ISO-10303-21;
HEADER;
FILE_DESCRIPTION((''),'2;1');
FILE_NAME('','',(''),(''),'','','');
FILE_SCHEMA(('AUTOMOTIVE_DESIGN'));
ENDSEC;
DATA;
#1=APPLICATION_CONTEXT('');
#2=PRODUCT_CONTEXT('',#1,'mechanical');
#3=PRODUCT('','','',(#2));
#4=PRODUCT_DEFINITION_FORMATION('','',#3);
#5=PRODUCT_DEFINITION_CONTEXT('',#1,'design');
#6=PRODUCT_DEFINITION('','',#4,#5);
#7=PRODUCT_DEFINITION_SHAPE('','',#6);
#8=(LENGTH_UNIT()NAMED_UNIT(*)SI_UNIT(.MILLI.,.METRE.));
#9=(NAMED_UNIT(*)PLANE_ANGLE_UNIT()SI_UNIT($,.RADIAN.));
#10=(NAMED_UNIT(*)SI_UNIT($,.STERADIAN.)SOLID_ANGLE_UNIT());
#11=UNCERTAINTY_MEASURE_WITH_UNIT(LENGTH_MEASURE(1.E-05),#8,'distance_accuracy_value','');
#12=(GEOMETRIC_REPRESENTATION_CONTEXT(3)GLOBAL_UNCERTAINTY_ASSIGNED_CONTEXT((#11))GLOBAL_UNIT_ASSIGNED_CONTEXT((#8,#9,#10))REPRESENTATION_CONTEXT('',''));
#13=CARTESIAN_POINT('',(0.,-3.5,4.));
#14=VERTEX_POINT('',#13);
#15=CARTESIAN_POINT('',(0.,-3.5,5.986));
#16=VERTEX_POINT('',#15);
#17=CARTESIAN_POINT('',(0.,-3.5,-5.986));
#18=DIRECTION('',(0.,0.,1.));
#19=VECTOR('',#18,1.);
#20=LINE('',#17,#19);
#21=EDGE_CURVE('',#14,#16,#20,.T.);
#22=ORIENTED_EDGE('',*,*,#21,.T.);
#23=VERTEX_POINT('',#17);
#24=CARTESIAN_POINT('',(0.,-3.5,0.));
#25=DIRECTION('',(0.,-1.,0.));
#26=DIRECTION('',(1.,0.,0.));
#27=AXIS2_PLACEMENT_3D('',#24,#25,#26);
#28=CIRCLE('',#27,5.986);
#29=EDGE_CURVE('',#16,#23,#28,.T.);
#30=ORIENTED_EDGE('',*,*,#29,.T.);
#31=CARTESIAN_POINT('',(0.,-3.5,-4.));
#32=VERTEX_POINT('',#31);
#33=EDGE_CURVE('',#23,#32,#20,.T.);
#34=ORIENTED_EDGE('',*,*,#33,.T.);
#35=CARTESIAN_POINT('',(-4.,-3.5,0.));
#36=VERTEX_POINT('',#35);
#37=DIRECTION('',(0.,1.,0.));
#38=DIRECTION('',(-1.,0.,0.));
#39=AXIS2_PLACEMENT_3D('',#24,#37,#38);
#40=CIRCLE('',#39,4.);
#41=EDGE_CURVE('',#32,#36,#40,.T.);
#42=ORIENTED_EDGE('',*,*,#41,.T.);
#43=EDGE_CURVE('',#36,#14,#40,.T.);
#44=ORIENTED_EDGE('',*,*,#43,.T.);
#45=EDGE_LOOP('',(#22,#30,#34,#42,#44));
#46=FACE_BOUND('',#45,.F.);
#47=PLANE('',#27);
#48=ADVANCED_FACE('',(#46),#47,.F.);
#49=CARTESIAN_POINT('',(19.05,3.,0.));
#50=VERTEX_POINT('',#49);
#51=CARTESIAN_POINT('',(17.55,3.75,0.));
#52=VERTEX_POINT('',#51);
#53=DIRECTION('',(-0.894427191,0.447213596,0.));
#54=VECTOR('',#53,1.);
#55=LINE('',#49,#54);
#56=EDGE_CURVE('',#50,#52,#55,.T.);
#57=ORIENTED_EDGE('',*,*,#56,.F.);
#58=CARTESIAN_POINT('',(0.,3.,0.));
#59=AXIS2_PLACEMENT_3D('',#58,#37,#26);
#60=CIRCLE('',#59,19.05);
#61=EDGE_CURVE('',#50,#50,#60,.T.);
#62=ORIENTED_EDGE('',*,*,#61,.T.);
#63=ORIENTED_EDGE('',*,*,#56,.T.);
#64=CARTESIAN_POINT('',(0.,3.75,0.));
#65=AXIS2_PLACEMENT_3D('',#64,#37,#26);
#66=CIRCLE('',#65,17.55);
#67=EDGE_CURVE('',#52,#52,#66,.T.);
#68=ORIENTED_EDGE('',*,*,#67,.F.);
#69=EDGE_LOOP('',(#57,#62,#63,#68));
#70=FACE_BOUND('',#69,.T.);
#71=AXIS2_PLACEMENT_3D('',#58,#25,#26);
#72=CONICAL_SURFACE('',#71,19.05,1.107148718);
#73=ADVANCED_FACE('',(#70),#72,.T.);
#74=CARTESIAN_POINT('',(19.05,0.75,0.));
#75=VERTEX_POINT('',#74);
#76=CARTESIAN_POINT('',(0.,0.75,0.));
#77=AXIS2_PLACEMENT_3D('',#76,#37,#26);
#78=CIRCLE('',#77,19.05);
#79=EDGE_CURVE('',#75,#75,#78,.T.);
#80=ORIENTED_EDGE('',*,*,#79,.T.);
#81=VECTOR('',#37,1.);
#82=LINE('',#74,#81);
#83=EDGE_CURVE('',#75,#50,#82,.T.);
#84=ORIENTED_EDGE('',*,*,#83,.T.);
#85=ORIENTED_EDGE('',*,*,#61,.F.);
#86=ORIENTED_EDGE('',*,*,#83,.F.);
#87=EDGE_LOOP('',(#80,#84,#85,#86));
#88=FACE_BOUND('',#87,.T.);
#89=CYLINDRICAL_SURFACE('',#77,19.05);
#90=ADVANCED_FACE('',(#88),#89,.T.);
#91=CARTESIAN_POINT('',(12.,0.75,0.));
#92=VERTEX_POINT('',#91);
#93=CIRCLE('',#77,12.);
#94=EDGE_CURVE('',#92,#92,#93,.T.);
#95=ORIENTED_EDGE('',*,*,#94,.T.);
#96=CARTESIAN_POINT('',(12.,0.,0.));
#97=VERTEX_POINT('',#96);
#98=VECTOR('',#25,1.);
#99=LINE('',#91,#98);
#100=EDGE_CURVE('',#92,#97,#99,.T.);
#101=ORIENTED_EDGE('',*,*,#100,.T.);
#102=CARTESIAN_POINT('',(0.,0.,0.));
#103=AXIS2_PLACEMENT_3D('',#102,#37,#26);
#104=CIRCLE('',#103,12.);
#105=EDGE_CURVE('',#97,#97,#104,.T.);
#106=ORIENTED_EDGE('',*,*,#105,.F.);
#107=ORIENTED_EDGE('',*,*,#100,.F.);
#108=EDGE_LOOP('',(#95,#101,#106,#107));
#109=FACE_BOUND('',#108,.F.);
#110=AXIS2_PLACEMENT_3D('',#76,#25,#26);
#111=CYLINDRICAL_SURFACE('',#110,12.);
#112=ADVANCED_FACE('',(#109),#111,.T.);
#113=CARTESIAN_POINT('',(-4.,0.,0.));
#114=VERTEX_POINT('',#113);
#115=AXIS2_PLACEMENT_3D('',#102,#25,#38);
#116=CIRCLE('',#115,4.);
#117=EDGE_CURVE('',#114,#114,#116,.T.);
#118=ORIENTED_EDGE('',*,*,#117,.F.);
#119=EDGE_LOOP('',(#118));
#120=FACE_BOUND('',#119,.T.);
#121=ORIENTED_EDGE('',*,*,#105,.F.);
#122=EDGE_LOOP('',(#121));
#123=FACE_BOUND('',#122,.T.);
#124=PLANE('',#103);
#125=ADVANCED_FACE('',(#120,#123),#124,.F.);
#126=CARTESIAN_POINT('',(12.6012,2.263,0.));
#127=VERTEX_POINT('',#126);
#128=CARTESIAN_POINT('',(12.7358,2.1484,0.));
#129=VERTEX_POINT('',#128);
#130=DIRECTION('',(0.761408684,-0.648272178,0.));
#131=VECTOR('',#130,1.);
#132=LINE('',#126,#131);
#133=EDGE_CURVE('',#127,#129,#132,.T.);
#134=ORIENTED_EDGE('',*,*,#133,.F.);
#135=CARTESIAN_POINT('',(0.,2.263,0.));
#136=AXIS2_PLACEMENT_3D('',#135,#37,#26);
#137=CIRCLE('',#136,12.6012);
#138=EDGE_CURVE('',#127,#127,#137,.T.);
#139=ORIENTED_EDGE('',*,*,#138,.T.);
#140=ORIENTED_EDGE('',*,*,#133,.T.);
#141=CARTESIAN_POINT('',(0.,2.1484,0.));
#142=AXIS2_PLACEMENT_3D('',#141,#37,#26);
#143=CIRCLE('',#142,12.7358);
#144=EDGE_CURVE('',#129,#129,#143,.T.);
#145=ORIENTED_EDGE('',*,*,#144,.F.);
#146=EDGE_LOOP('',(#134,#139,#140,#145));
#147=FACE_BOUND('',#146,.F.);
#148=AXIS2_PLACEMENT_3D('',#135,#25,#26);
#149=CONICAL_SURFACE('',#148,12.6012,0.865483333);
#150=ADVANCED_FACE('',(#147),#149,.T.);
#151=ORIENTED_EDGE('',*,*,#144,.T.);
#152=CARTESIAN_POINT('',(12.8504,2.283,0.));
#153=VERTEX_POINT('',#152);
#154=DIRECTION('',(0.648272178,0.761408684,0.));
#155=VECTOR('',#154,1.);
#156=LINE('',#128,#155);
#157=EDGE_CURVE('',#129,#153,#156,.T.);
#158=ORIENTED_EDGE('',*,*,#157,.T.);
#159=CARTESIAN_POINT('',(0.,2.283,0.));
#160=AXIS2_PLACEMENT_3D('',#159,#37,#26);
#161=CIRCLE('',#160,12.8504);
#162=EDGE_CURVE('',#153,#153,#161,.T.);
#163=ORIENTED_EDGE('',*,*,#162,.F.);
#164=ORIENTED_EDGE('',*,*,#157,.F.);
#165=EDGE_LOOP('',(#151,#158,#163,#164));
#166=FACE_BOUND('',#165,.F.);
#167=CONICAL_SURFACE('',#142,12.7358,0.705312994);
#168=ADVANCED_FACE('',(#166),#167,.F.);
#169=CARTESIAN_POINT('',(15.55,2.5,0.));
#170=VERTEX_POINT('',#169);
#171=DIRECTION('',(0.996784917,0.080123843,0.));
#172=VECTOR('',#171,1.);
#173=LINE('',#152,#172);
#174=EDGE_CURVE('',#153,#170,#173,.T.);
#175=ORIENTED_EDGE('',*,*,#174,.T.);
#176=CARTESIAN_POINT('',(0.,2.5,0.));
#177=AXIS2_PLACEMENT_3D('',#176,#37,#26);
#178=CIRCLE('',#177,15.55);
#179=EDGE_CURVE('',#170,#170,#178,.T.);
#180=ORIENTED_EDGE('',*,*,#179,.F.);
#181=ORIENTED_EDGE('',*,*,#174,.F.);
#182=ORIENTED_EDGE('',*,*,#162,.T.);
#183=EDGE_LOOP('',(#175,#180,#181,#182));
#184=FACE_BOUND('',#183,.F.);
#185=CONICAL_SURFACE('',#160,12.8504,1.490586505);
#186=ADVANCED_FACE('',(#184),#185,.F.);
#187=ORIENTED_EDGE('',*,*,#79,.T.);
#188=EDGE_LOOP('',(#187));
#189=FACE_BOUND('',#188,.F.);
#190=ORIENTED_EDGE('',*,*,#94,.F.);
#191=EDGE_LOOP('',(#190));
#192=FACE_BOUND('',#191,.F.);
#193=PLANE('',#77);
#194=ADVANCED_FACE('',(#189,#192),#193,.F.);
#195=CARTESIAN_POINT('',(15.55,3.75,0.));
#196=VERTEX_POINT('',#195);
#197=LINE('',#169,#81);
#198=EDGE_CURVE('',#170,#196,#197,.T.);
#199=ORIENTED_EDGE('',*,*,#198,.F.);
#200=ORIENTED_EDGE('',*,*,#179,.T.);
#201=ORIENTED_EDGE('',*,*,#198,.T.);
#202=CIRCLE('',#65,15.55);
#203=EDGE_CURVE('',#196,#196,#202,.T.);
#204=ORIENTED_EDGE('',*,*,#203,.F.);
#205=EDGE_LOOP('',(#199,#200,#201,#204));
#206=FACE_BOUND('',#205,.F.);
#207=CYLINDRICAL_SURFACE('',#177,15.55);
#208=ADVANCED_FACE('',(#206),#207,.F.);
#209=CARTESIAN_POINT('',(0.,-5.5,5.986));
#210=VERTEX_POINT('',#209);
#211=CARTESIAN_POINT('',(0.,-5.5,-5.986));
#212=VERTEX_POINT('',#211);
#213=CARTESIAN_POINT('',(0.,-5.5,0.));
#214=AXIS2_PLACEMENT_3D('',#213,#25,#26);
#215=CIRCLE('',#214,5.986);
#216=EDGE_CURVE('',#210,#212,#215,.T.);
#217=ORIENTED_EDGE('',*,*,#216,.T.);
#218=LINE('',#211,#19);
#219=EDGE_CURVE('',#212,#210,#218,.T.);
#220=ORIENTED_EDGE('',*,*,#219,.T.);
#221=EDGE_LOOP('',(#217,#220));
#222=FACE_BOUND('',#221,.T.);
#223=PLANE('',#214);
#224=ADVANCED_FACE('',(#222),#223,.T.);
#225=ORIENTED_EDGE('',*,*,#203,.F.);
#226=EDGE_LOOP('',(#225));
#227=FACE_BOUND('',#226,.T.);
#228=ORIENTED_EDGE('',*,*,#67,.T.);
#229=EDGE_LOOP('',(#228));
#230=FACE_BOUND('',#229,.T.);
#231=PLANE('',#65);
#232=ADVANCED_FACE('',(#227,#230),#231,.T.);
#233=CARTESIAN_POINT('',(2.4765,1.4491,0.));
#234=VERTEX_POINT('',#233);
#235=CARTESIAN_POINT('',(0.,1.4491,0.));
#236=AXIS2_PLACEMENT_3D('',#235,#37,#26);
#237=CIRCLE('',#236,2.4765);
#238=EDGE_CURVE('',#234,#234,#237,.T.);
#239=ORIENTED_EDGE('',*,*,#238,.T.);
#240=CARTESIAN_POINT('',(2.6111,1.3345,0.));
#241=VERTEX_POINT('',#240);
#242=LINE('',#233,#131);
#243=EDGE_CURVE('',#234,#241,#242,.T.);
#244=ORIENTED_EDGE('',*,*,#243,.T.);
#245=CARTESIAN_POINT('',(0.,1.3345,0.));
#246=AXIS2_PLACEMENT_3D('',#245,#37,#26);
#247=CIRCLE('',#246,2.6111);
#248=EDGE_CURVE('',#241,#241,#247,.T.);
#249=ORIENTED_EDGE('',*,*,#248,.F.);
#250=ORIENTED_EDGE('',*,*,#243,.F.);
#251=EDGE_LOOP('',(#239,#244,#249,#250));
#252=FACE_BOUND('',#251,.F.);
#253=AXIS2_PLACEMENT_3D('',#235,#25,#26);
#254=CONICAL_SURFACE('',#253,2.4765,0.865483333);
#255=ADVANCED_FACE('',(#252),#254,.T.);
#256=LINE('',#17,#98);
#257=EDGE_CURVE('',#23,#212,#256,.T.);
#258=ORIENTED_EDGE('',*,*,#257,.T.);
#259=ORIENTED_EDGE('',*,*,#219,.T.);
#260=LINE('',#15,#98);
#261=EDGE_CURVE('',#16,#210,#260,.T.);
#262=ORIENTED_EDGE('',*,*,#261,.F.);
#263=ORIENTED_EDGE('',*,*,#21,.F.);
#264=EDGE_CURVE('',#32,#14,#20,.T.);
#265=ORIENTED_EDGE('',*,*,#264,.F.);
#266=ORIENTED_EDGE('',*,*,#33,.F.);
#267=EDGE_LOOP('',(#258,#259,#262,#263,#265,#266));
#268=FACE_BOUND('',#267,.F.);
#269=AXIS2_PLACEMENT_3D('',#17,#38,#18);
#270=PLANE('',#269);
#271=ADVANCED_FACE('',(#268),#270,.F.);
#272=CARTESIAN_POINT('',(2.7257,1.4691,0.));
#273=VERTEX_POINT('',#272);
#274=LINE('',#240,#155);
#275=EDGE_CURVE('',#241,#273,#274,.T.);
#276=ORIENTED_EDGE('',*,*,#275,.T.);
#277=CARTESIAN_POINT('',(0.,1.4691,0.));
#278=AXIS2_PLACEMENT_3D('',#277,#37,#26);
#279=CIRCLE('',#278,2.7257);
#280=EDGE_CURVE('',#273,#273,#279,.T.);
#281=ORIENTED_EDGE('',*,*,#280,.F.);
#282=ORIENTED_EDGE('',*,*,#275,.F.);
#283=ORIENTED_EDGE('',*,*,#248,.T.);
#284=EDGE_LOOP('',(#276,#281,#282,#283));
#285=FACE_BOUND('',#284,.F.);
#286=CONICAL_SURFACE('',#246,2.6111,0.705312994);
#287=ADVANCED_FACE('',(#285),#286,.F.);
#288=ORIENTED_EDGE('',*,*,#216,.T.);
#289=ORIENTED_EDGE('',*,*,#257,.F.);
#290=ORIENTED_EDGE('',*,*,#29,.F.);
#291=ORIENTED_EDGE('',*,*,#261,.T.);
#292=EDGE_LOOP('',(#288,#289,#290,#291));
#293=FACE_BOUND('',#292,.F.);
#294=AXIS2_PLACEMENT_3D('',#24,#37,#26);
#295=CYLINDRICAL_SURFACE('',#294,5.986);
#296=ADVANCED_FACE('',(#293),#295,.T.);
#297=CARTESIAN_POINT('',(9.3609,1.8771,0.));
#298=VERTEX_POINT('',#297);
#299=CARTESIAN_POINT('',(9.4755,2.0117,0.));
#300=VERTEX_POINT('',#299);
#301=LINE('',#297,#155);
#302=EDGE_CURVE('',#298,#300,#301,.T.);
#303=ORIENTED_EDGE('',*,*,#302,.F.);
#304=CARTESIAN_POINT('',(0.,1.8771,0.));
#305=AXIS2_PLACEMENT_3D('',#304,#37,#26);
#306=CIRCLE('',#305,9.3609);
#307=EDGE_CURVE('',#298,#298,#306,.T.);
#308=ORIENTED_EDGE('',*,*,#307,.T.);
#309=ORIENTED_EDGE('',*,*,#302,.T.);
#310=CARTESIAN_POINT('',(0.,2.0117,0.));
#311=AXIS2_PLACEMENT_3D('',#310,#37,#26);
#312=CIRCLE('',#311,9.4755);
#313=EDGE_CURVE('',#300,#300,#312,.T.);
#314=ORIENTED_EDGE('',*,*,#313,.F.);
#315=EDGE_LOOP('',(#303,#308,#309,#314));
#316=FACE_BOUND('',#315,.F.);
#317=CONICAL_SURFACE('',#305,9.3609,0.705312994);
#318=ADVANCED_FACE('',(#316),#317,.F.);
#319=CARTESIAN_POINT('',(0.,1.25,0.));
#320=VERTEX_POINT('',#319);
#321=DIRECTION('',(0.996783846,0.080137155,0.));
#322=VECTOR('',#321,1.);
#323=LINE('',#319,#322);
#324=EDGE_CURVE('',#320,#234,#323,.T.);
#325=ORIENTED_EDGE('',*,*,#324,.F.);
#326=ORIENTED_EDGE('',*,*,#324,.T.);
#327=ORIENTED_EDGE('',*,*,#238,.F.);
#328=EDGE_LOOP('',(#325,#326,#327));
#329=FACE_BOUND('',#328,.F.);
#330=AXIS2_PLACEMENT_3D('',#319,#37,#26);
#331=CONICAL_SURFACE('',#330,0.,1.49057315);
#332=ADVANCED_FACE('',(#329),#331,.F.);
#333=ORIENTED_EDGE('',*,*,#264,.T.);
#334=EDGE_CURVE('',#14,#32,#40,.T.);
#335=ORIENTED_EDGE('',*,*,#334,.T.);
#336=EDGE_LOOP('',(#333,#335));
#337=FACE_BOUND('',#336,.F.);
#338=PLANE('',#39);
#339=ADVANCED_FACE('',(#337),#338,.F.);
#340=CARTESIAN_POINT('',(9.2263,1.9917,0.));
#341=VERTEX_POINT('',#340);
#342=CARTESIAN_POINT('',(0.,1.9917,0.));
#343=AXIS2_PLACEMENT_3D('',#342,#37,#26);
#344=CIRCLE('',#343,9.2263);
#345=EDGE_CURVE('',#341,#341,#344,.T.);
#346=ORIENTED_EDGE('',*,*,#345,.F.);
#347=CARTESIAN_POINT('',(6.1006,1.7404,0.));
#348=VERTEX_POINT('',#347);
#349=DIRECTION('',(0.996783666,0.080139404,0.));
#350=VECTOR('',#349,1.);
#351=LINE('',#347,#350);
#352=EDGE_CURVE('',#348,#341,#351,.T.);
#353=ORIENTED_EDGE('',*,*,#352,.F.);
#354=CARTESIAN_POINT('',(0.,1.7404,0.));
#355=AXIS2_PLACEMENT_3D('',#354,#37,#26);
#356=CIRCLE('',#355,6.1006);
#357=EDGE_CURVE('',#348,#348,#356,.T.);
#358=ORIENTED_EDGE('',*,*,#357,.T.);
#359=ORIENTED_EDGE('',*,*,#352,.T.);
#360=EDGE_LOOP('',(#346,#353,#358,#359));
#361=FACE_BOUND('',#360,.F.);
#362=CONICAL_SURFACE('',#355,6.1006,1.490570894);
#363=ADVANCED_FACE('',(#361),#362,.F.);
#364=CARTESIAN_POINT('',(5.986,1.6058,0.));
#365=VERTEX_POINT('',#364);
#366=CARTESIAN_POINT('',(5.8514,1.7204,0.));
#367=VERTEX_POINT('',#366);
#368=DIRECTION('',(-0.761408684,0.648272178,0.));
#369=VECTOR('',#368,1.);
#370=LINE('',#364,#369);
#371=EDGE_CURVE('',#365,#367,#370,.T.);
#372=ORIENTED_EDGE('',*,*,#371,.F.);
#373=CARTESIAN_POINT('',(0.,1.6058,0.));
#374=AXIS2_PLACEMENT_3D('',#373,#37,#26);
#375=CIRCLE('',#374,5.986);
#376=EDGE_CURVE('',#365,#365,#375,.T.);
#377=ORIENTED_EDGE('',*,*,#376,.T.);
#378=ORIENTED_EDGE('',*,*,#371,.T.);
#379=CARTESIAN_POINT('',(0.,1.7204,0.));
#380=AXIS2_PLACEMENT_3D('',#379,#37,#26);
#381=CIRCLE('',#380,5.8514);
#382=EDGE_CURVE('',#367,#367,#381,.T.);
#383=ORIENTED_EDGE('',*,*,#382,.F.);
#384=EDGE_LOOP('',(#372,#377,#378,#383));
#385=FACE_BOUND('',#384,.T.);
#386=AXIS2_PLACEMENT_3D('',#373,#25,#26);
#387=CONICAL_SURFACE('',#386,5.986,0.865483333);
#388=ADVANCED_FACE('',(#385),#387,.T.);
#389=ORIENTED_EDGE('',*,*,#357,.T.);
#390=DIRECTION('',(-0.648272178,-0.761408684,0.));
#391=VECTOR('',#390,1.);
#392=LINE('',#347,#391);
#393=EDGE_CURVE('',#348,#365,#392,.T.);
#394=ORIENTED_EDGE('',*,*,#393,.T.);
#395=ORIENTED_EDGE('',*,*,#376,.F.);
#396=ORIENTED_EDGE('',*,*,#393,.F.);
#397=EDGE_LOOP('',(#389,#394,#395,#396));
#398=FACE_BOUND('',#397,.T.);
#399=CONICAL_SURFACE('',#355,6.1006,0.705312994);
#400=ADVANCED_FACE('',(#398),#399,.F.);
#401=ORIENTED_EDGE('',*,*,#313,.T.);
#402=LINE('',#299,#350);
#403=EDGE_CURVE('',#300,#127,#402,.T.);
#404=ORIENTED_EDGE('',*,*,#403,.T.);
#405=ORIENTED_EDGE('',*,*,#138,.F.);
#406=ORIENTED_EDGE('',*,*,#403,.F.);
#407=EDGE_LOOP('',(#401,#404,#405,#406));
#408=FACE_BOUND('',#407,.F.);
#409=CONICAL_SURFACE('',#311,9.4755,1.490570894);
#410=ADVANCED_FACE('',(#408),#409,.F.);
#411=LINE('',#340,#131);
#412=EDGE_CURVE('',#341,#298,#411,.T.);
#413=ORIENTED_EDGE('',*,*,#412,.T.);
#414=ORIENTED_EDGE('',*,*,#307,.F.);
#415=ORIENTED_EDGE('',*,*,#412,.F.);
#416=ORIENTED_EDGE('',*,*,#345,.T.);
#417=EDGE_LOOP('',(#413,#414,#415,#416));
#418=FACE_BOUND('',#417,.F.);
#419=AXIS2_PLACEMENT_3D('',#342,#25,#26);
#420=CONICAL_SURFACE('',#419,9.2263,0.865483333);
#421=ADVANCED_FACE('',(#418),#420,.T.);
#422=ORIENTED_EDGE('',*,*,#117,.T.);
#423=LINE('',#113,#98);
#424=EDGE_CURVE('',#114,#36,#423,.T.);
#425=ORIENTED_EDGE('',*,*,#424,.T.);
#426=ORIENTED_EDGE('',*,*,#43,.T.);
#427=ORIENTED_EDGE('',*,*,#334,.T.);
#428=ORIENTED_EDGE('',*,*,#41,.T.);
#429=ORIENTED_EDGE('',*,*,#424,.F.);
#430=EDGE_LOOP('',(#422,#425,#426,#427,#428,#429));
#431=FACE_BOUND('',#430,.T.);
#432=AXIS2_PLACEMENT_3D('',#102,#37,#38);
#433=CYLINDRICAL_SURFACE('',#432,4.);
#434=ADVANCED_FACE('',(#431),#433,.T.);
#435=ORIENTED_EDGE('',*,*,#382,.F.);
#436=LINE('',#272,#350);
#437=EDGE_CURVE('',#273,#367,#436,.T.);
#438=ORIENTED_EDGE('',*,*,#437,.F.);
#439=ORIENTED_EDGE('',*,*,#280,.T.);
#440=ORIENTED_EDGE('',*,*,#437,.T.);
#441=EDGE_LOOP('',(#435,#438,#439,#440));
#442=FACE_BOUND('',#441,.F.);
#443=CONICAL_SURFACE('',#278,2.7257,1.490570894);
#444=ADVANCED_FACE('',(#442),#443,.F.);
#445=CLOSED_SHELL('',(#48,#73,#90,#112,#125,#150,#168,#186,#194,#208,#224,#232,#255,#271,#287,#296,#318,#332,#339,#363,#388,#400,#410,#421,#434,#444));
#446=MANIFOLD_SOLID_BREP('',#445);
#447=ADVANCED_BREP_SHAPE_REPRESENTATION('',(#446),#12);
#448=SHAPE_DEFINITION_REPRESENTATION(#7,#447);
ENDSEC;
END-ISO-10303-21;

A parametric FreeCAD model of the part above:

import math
import FreeCAD as App
import Part
import Sketcher

V = App.Vector


def add_polygon(sketch, points):
    """Adds a closed chain of lines whose ends are joined by coincident constraints."""
    first, n = sketch.GeometryCount, len(points)
    for a, b in zip(points, points[1:] + points[:1]):
        sketch.addGeometry(Part.LineSegment(App.Vector(*a, 0), App.Vector(*b, 0)), False)
    for i in range(n):
        sketch.addConstraint(Sketcher.Constraint("Coincident", first + i, 2, first + (i + 1) % n, 1))

doc = App.newDocument("Part")
body = doc.addObject("PartDesign::Body", "Body")

# Sketch on XZ plane
sketch1 = body.newObject("Sketcher::SketchObject", "Sketch")
sketch1.AttachmentSupport = (doc.getObject("XZ_Plane"), [""])
sketch1.MapMode = "FlatFace"
sketch1.addGeometry(Part.Circle(V(0, 0, 0), V(0, 0, 1), 4), False)
sketch1.addConstraint([
    Sketcher.Constraint("Coincident", 0, 3, -1, 1),
    Sketcher.Constraint("Diameter", 0, 8.0),
])
pad1 = body.newObject("PartDesign::Pad", "Pad")
pad1.Profile = sketch1
pad1.Length = 3.5

# Sketch on XY plane
sketch2 = body.newObject("Sketcher::SketchObject", "Sketch001")
sketch2.AttachmentSupport = (doc.getObject("XY_Plane"), [""])
sketch2.MapMode = "FlatFace"
add_polygon(sketch2, [(0, 1.25), (0, 0), (12, 0), (12, 0.75), (19.05, 0.75), (19.05, 3), (17.55, 3.75), (15.55, 3.75), (15.55, 2.5), (12.85, 2.28), (12.74, 2.15), (12.6, 2.26), (9.48, 2.01), (9.36, 1.88), (9.23, 1.99), (6.1, 1.74), (5.99, 1.61), (5.85, 1.72), (2.73, 1.47), (2.61, 1.33), (2.48, 1.45)])  # lines 0-20
sketch2.addConstraint([
    Sketcher.Constraint("Vertical", 0),
    Sketcher.Constraint("Horizontal", 1),
    Sketcher.Constraint("Vertical", 2),
    Sketcher.Constraint("Horizontal", 3),
    Sketcher.Constraint("Vertical", 4),
    Sketcher.Constraint("Horizontal", 6),
    Sketcher.Constraint("Vertical", 7),
    Sketcher.Constraint("Coincident", 0, 2, -1, 1),
    Sketcher.Constraint("Perpendicular", 9, 10),
    Sketcher.Constraint("Parallel", 8, 11),
    Sketcher.Constraint("Perpendicular", 10, 12),
    Sketcher.Constraint("Perpendicular", 12, 13),
    Sketcher.Constraint("Parallel", 11, 14),
    Sketcher.Constraint("Perpendicular", 13, 15),
    Sketcher.Constraint("Perpendicular", 15, 16),
    Sketcher.Constraint("Parallel", 14, 17),
    Sketcher.Constraint("Perpendicular", 16, 18),
    Sketcher.Constraint("Perpendicular", 18, 19),
    Sketcher.Constraint("Parallel", 17, 20),
    Sketcher.Constraint("Equal", 0, 7),
    Sketcher.Constraint("Equal", 9, 10),
    Sketcher.Constraint("Equal", 10, 12),
    Sketcher.Constraint("Equal", 12, 13),
    Sketcher.Constraint("Equal", 11, 14),
    Sketcher.Constraint("Equal", 13, 15),
    Sketcher.Constraint("Equal", 15, 16),
    Sketcher.Constraint("Equal", 14, 17),
    Sketcher.Constraint("Equal", 16, 18),
    Sketcher.Constraint("Equal", 18, 19),
    Sketcher.Constraint("DistanceX", 1, 1, 1, 2, 12.0),
    Sketcher.Constraint("DistanceY", -1, 1, 4, 2, 3.0),
    Sketcher.Constraint("DistanceY", 3, 2, 5, 2, 3.0),
    Sketcher.Constraint("DistanceY", 0, 2, 0, 1, 1.25),
    Sketcher.Constraint("DistanceY", 2, 1, 2, 2, 0.75),
    Sketcher.Constraint("DistanceX", 5, 2, 4, 2, 1.5),
    Sketcher.Constraint("DistanceX", 6, 2, 4, 2, 3.5),
    Sketcher.Constraint("DistanceX", -1, 1, 3, 2, 19.05),
    Sketcher.Constraint("DistanceY", 10, 2, 8, 2, 0.02),
    Sketcher.Constraint("DistanceY", -1, 1, 8, 2, 2.283),
    Sketcher.Constraint("DistanceX", -1, 1, 12, 2, 9.361),
    Sketcher.Constraint("DistanceY", -1, 1, 12, 2, 1.877),
])
revolution = body.newObject("PartDesign::Revolution", "Revolution")
revolution.Profile = sketch2
revolution.ReferenceAxis = (sketch2, ["V_Axis"])
revolution.Angle = 360

# Sketch on XZ plane
sketch3 = body.newObject("Sketcher::SketchObject", "Sketch002")
sketch3.AttachmentSupport = (doc.getObject("XZ_Plane"), [""])
sketch3.MapMode = "FlatFace"
sketch3.AttachmentOffset = App.Placement(V(0, 0, 3.5), App.Rotation())
sketch3.addGeometry([
    Part.LineSegment(V(0, -6, 0), V(0, 6, 0)),
    Part.ArcOfCircle(Part.Circle(V(0, 0, 0), V(0, 0, 1), 6), math.radians(90), math.radians(270)),
], False)
sketch3.addConstraint([
    Sketcher.Constraint("Coincident", 0, 1, 1, 2),
    Sketcher.Constraint("Coincident", 1, 1, 0, 2),
    Sketcher.Constraint("Vertical", 0),
    Sketcher.Constraint("Coincident", 1, 3, -1, 1),
    Sketcher.Constraint("PointOnObject", 0, 1, -2),
    Sketcher.Constraint("Radius", 1, 5.986),
])
pad2 = body.newObject("PartDesign::Pad", "Pad001")
pad2.Profile = sketch3
pad2.Length = 2

doc.recompute()
